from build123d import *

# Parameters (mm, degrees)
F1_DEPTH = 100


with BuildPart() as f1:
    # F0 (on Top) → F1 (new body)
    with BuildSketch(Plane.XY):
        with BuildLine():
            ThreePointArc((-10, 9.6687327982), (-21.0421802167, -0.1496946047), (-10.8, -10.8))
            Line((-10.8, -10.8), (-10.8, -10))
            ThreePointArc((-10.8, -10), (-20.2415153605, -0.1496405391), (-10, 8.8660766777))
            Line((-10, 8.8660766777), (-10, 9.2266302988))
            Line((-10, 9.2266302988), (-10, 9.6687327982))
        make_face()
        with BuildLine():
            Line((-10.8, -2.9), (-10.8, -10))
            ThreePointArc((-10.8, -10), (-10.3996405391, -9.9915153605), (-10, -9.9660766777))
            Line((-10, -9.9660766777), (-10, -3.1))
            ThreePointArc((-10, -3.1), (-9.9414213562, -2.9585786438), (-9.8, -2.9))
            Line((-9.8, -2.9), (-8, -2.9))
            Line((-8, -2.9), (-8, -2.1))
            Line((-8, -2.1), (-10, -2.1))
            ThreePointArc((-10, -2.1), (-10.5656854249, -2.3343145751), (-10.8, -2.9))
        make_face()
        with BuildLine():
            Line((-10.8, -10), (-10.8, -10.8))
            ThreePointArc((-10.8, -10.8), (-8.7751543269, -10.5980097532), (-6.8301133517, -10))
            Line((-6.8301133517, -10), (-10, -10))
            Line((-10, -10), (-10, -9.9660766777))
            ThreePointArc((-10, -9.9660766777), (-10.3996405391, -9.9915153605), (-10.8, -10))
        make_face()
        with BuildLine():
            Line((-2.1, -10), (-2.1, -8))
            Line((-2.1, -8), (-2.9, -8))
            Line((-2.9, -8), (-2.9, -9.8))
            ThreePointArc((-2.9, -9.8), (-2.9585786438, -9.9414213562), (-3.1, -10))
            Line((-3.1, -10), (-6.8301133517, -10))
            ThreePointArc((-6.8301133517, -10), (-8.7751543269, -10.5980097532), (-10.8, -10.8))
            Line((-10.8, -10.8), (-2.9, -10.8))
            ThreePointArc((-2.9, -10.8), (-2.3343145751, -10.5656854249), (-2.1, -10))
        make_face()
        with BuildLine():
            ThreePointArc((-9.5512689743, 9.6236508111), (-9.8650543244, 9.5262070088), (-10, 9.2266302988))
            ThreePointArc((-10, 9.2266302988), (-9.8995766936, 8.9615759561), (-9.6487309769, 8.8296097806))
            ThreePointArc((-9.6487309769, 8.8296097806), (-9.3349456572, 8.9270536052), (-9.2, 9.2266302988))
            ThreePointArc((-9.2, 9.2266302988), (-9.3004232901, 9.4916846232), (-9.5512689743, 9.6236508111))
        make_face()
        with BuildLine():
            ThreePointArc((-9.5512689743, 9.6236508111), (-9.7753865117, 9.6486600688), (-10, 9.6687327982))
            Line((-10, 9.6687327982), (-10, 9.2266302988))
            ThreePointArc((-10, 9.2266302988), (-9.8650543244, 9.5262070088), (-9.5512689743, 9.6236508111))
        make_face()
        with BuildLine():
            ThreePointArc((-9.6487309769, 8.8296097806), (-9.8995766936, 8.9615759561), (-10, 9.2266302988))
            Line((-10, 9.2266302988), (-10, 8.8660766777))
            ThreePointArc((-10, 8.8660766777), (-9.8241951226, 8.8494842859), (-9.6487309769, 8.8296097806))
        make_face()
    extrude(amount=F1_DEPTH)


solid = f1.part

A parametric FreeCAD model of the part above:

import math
import FreeCAD as App
import Part
import Sketcher
from FreeCAD import Vector
Q = App.Units.Quantity

doc = App.newDocument("Part")
body = doc.addObject("PartDesign::Body", "Body")

sketch1 = body.newObject("Sketcher::SketchObject", "Sketch")
sketch1.AttachmentSupport = (doc.getObject("XY_Plane"), [""])
sketch1.MapMode = "FlatFace"
sketch1.addGeometry(Part.ArcOfCircle(Part.Circle(Vector(-10.8, -0.55, 0), Vector(0, 0, 1), 10.25), math.radians(86), math.radians(270)), False)
sketch1.addGeometry(Part.LineSegment(Vector(-10.8, -10.8, 0), Vector(-2.9, -10.8, 0)), False)
sketch1.addGeometry(Part.ArcOfCircle(Part.Circle(Vector(-2.9, -10, 0), Vector(0, 0, 1), 0.8), math.radians(-90), math.radians(0)), False)
sketch1.addGeometry(Part.LineSegment(Vector(-2.1, -10, 0), Vector(-2.1, -8, 0)), False)
sketch1.addGeometry(Part.LineSegment(Vector(-2.1, -8, 0), Vector(-2.9, -8, 0)), False)
sketch1.addGeometry(Part.LineSegment(Vector(-2.9, -8, 0), Vector(-2.9, -9.8, 0)), False)
sketch1.addGeometry(Part.ArcOfCircle(Part.Circle(Vector(-3.1, -9.8, 0), Vector(0, 0, 1), 0.2), math.radians(-90), math.radians(0)), False)
sketch1.addGeometry(Part.LineSegment(Vector(-3.1, -10, 0), Vector(-10, -10, 0)), False)
sketch1.addGeometry(Part.LineSegment(Vector(-10, -10, 0), Vector(-10, -3.1, 0)), False)
sketch1.addGeometry(Part.ArcOfCircle(Part.Circle(Vector(-9.8, -3.1, 0), Vector(0, 0, 1), 0.2), math.radians(90), math.radians(180)), False)
sketch1.addGeometry(Part.LineSegment(Vector(-9.8, -2.9, 0), Vector(-8, -2.9, 0)), False)
sketch1.addGeometry(Part.LineSegment(Vector(-8, -2.9, 0), Vector(-8, -2.1, 0)), False)
sketch1.addGeometry(Part.LineSegment(Vector(-8, -2.1, 0), Vector(-10, -2.1, 0)), False)
sketch1.addGeometry(Part.ArcOfCircle(Part.Circle(Vector(-10, -2.9, 0), Vector(0, 0, 1), 0.8), math.radians(90), math.radians(180)), False)
sketch1.addGeometry(Part.LineSegment(Vector(-10.8, -2.9, 0), Vector(-10.8, -10, 0)), False)
sketch1.addGeometry(Part.ArcOfCircle(Part.Circle(Vector(-10.8, -0.55, 0), Vector(0, 0, 1), 9.45), math.radians(85), math.radians(270)), False)
sketch1.addGeometry(Part.ArcOfCircle(Part.Circle(Vector(-10.8, -0.55, 0), Vector(0, 0, 1), 9.45), math.radians(83), math.radians(85.14)), False)
sketch1.addGeometry(Part.ArcOfCircle(Part.Circle(Vector(-9.6, 9.23, 0), Vector(0, 0, 1), 0.4), math.radians(-97), math.radians(0)), False)
sketch1.addGeometry(Part.ArcOfCircle(Part.Circle(Vector(-9.6, 9.23, 0), Vector(0, 0, 1), 0.4), math.radians(0), math.radians(83)), False)
sketch1.addGeometry(Part.ArcOfCircle(Part.Circle(Vector(-10.8, -0.55, 0), Vector(0, 0, 1), 10.25), math.radians(83), math.radians(85.52)), False)
sketch1.addConstraint(Sketcher.Constraint("Tangent", 0, 2, 1, 1))
sketch1.addConstraint(Sketcher.Constraint("Tangent", 1, 2, 2, 1))
sketch1.addConstraint(Sketcher.Constraint("Tangent", 2, 2, 3, 1))
sketch1.addConstraint(Sketcher.Constraint("Coincident", 3, 2, 4, 1))
sketch1.addConstraint(Sketcher.Constraint("Coincident", 4, 2, 5, 1))
sketch1.addConstraint(Sketcher.Constraint("Tangent", 5, 2, 6, 2))
sketch1.addConstraint(Sketcher.Constraint("Tangent", 6, 1, 7, 1))
sketch1.addConstraint(Sketcher.Constraint("Coincident", 7, 2, 8, 1))
sketch1.addConstraint(Sketcher.Constraint("Tangent", 8, 2, 9, 2))
sketch1.addConstraint(Sketcher.Constraint("Tangent", 9, 1, 10, 1))
sketch1.addConstraint(Sketcher.Constraint("Coincident", 10, 2, 11, 1))
sketch1.addConstraint(Sketcher.Constraint("Coincident", 11, 2, 12, 1))
sketch1.addConstraint(Sketcher.Constraint("Tangent", 12, 2, 13, 1))
sketch1.addConstraint(Sketcher.Constraint("Tangent", 13, 2, 14, 1))
sketch1.addConstraint(Sketcher.Constraint("Coincident", 14, 2, 15, 2))
sketch1.addConstraint(Sketcher.Constraint("Tangent", 15, 1, 16, 2))
sketch1.addConstraint(Sketcher.Constraint("Tangent", 16, 1, 17, 1))
sketch1.addConstraint(Sketcher.Constraint("Tangent", 17, 2, 18, 1))
sketch1.addConstraint(Sketcher.Constraint("Tangent", 18, 2, 19, 1))
sketch1.addConstraint(Sketcher.Constraint("Tangent", 19, 2, 0, 1))
sketch1.addConstraint(Sketcher.Constraint("Horizontal", 1))
sketch1.addConstraint(Sketcher.Constraint("Vertical", 3))
sketch1.addConstraint(Sketcher.Constraint("Horizontal", 4))
sketch1.addConstraint(Sketcher.Constraint("Vertical", 5))
sketch1.addConstraint(Sketcher.Constraint("Horizontal", 7))
sketch1.addConstraint(Sketcher.Constraint("Vertical", 8))
sketch1.addConstraint(Sketcher.Constraint("Horizontal", 10))
sketch1.addConstraint(Sketcher.Constraint("Vertical", 11))
sketch1.addConstraint(Sketcher.Constraint("Horizontal", 12))
sketch1.addConstraint(Sketcher.Constraint("Vertical", 14))
sketch1.addConstraint(Sketcher.Constraint("Coincident", 15, 3, 0, 3))
sketch1.addConstraint(Sketcher.Constraint("Equal", 6, 9))
sketch1.addConstraint(Sketcher.Constraint("Equal", 2, 13))
sketch1.addConstraint(Sketcher.Constraint("Equal", 15, 16))
sketch1.addConstraint(Sketcher.Constraint("Equal", 17, 18))
sketch1.addConstraint(Sketcher.Constraint("Equal", 0, 19))
sketch1.addConstraint(Sketcher.Constraint("Horizontal", 2, 2, 6, 1))
sketch1.addConstraint(Sketcher.Constraint("Horizontal", 13, 3, 9, 1))
sketch1.addConstraint(Sketcher.Constraint("Horizontal", 7, 2, 14, 2))
sketch1.addConstraint(Sketcher.Constraint("Horizontal", 18, 3, 17, 2))
sketch1.addConstraint(Sketcher.Constraint("Vertical", 1, 2, 4, 2))
sketch1.addConstraint(Sketcher.Constraint("Vertical", 13, 3, 7, 2))
sketch1.addConstraint(Sketcher.Constraint("Vertical", 0, 2, 13, 2))
sketch1.addConstraint(Sketcher.Constraint("Vertical", 12, 2, 15, 1))
sketch1.addConstraint(Sketcher.Constraint("Vertical", 15, 1, 19, 2))
sketch1.addConstraint(Sketcher.Constraint("Equal", 12, 3))
sketch1.addConstraint(Sketcher.Constraint("Equal", 7, 8))
sketch1.addConstraint(Sketcher.Constraint("Radius", 2, Q("0.8 mm")))
sketch1.addConstraint(Sketcher.Constraint("Radius", 6, Q("0.2 mm")))
sketch1.addConstraint(Sketcher.Constraint("DistanceX", 12, 2, 12, 1, Q("2 mm")))
sketch1.addConstraint(Sketcher.Constraint("Radius", 0, Q("10.25 mm")))
sketch1.addConstraint(Sketcher.Constraint("DistanceX", 1, 1, 1, 2, Q("7.9 mm")))
sketch1.addConstraint(Sketcher.Constraint("DistanceY", 2, 3, -1, 1, Q("10 mm")))
sketch1.addConstraint(Sketcher.Constraint("DistanceX", 13, 3, -1, 1, Q("10 mm")))
sketch1.addConstraint(Sketcher.Constraint("DistanceX", 17, 3, -1, 1, Q("9.6 mm")))
pad1 = body.newObject("PartDesign::Pad", "Pad")
pad1.Profile = sketch1
pad1.Length = 100

doc.recompute()
